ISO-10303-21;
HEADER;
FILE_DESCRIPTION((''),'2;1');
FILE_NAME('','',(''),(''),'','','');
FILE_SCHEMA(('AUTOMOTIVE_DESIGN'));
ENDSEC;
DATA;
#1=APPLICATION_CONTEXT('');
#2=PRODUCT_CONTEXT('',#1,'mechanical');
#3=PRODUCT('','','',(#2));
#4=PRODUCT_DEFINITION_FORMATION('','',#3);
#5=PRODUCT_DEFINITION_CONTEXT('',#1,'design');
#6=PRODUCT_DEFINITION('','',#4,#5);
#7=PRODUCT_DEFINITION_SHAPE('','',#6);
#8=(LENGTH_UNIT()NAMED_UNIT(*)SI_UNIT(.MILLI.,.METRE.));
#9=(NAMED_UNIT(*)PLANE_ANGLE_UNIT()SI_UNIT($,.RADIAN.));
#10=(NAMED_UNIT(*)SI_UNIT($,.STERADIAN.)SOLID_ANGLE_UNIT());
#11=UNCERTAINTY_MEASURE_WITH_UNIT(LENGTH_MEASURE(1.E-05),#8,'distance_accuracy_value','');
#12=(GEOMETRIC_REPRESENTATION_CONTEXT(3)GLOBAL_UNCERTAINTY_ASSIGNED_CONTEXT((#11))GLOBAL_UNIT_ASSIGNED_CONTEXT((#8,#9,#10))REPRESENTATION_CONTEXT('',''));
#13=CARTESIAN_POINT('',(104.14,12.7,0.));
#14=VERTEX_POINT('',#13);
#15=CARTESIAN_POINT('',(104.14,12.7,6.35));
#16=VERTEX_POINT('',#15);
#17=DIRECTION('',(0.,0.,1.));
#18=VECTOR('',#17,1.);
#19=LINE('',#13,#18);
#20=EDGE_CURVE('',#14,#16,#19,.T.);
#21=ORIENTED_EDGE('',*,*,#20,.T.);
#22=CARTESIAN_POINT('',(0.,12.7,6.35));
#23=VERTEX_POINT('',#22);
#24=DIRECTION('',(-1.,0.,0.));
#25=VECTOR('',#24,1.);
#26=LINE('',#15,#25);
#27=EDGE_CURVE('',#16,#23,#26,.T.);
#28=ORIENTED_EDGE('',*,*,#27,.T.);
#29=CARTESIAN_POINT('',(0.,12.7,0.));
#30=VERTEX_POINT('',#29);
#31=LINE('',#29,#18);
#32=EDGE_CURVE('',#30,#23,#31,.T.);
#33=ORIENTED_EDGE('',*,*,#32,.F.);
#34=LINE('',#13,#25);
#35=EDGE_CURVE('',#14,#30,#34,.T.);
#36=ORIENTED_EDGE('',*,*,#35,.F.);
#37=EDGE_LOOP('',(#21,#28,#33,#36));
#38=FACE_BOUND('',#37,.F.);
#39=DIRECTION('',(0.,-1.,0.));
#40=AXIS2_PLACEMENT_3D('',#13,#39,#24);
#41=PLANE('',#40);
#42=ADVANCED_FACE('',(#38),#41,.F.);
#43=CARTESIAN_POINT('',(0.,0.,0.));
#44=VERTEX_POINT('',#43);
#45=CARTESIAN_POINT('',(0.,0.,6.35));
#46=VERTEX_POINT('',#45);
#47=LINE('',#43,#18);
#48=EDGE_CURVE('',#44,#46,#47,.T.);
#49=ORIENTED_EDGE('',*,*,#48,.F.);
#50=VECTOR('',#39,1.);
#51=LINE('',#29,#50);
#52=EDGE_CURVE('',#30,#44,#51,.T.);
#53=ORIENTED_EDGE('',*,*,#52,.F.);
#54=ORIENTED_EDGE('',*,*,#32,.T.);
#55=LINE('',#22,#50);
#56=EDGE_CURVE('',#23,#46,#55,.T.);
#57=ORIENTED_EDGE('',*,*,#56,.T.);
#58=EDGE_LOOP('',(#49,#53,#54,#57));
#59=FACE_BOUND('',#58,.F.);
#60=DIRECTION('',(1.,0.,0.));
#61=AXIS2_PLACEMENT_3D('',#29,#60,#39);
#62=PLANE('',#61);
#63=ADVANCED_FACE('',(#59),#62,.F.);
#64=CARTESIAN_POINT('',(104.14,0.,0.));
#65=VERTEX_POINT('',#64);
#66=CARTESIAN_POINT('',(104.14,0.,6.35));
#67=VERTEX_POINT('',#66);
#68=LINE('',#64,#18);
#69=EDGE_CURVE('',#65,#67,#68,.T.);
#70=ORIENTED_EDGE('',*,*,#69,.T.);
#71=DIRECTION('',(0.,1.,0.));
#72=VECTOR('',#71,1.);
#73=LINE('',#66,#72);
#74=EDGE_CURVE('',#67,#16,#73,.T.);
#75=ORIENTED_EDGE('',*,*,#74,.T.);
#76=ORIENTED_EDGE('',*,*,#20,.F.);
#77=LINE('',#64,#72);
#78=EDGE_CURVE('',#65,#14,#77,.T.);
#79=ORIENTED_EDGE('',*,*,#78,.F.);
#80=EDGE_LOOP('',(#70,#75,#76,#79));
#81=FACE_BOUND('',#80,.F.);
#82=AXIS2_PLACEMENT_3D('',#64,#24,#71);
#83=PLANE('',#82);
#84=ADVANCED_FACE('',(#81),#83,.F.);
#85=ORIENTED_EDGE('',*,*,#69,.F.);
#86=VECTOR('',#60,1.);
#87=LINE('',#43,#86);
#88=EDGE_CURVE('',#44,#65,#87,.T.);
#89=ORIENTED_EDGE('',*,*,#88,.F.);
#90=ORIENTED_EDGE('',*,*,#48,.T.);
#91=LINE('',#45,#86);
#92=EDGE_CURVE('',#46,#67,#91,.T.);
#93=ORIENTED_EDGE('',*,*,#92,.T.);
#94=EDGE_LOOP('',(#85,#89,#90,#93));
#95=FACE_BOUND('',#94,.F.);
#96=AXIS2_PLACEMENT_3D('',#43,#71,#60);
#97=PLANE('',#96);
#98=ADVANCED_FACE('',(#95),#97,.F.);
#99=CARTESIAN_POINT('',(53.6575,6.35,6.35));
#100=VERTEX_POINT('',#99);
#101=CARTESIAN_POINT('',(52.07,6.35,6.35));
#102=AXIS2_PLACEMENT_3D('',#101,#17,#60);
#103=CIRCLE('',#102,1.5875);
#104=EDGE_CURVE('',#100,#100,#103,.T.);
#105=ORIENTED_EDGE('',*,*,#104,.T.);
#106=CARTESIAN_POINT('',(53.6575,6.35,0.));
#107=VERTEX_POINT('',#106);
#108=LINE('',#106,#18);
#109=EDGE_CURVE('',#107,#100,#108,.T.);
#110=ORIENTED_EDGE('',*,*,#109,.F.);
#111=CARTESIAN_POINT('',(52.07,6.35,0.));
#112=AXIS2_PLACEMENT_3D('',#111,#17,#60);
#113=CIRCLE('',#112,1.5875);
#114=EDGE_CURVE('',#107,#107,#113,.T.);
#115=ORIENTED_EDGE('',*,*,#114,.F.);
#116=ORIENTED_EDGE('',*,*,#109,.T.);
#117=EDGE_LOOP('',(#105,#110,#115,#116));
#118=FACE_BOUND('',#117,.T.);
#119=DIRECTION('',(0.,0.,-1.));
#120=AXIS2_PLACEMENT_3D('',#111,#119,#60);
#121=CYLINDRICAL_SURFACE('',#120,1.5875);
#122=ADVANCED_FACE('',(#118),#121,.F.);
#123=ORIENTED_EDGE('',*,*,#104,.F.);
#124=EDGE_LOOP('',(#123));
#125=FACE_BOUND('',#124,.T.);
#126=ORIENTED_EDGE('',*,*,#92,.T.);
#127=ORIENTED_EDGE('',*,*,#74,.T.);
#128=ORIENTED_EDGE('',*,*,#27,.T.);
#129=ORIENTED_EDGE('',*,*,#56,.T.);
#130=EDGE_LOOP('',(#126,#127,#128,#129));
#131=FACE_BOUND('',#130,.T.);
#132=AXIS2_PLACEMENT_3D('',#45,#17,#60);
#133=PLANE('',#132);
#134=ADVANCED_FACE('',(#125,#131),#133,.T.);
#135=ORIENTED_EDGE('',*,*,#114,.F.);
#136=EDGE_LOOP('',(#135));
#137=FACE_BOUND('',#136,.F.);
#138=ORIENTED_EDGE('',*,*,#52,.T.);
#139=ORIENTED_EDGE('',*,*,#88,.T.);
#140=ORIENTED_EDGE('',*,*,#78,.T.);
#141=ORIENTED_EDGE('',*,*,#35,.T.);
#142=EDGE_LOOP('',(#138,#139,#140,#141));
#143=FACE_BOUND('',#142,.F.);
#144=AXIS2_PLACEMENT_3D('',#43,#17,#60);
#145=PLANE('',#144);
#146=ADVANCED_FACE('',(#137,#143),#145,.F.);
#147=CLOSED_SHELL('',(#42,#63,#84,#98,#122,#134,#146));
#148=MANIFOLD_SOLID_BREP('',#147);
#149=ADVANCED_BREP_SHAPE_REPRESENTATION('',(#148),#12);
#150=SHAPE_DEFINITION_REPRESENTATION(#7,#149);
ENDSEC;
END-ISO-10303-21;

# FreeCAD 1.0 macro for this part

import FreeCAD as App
import Part
import Sketcher

V = App.Vector
Q = App.Units.Quantity


def add_polygon(sketch, points):
    """Adds a closed chain of lines whose ends are joined by coincident constraints."""
    first, n = sketch.GeometryCount, len(points)
    for a, b in zip(points, points[1:] + points[:1]):
        sketch.addGeometry(Part.LineSegment(App.Vector(*a, 0), App.Vector(*b, 0)), False)
    for i in range(n):
        sketch.addConstraint(Sketcher.Constraint("Coincident", first + i, 2, first + (i + 1) % n, 1))

doc = App.newDocument("Part")
body = doc.addObject("PartDesign::Body", "Body")

# Sketch on XY plane
sketch1 = body.newObject("Sketcher::SketchObject", "Sketch")
sketch1.AttachmentSupport = (doc.getObject("XY_Plane"), [""])
sketch1.MapMode = "FlatFace"
add_polygon(sketch1, [(0, 12.7), (0, 0), (104.1, 0), (104.1, 12.7)])  # lines 0-3
sketch1.addGeometry(Part.Circle(V(52.1, 6.3, 0), V(0, 0, 1), 1.6), False)  # 4
sketch1.addConstraint([
    Sketcher.Constraint("Vertical", 0),
    Sketcher.Constraint("Horizontal", 1),
    Sketcher.Constraint("Vertical", 2),
    Sketcher.Constraint("Horizontal", 3),
    Sketcher.Constraint("Coincident", 0, 2, -1, 1),
    Sketcher.Constraint("Diameter", 4, Q("0.125 in")),
    Sketcher.Constraint("DistanceX", 1, 1, 1, 2, Q("4.1 in")),
    Sketcher.Constraint("DistanceY", 0, 2, 0, 1, Q("0.5 in")),
    Sketcher.Constraint("DistanceX", -1, 1, 4, 3, Q("2.05 in")),
    Sketcher.Constraint("DistanceY", -1, 1, 4, 3, Q("0.25 in")),
])
pad1 = body.newObject("PartDesign::Pad", "Pad")
pad1.Profile = sketch1
pad1.Length = Q("0.25 in")

doc.recompute()
